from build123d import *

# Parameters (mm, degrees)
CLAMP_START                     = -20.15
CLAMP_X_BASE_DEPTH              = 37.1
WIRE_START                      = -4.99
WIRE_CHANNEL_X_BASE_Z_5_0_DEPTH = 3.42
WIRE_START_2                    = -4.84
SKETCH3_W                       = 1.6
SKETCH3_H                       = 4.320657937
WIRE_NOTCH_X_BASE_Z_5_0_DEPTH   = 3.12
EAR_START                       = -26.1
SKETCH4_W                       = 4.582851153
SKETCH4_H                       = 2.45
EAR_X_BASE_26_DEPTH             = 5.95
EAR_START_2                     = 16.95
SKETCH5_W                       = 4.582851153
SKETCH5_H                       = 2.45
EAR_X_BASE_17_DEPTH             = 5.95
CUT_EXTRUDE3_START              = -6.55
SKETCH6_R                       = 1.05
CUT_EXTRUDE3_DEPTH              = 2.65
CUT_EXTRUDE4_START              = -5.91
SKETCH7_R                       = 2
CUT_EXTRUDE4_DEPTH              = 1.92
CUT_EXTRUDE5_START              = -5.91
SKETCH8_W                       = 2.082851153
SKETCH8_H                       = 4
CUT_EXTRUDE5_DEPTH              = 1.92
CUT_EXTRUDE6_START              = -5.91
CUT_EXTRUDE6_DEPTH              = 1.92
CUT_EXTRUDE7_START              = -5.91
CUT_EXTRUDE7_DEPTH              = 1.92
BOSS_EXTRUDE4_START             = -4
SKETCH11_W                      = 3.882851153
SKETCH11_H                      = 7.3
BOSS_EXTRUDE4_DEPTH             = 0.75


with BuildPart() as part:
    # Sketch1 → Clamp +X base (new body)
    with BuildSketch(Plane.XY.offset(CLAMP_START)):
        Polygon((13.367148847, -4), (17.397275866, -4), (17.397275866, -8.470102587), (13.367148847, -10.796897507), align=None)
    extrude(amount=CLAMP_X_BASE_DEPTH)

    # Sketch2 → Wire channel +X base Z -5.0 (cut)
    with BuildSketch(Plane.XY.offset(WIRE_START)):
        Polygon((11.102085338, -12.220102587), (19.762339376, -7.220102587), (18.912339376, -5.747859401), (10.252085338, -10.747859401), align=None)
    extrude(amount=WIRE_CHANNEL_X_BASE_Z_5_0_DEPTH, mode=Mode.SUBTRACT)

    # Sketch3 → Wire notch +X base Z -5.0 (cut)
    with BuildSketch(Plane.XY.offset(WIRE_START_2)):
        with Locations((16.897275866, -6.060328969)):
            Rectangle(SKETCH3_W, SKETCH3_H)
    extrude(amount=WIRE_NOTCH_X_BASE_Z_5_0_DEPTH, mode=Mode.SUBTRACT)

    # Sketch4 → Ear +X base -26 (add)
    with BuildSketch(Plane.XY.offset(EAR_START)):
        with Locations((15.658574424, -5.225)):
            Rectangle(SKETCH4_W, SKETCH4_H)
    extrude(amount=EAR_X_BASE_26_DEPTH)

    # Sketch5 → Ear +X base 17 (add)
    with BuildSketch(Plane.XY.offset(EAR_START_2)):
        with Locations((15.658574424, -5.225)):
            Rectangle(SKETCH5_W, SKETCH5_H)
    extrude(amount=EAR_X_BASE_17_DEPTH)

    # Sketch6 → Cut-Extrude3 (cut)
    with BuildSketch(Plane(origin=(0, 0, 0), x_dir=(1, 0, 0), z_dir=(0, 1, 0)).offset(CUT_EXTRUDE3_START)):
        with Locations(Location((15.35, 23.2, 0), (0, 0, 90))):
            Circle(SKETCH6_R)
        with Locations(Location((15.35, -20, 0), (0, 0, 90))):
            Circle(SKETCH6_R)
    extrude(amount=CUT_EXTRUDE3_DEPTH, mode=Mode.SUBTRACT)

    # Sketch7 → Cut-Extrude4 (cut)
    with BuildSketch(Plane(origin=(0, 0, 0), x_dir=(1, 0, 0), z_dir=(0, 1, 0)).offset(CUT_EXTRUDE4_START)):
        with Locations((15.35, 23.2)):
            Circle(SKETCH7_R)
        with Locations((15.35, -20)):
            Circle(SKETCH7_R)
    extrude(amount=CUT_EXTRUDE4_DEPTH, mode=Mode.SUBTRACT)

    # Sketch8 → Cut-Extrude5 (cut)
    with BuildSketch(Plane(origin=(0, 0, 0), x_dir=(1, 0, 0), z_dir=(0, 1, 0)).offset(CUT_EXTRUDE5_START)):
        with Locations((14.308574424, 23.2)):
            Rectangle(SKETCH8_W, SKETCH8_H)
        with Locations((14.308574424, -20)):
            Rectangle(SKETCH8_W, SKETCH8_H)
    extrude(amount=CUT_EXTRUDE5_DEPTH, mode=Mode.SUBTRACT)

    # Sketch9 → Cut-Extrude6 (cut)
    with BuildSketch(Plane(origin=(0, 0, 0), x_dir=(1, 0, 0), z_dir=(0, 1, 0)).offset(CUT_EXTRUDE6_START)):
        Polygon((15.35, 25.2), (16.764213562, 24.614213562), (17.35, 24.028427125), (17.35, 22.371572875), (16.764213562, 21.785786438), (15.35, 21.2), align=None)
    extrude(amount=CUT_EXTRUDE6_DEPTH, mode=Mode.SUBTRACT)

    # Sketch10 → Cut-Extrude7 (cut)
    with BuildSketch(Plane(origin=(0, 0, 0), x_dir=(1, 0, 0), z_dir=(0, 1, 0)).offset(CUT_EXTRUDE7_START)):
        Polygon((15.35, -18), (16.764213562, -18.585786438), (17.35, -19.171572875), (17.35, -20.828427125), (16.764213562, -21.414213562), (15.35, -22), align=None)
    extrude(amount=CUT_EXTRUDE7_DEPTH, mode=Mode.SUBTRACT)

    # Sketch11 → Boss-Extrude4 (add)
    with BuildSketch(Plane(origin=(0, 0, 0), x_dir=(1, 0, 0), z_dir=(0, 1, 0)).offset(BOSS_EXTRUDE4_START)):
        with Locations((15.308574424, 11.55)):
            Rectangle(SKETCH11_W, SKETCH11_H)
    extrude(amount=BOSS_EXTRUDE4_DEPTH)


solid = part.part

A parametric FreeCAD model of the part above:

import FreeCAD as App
import Part
import Sketcher
Q = App.Units.Quantity

doc = App.newDocument("Part")
body = doc.addObject("PartDesign::Body", "Body")

sketch1 = body.newObject("Sketcher::SketchObject", "Sketch")
sketch1.AttachmentSupport = (doc.getObject("XY_Plane"), [""])
sketch1.MapMode = "FlatFace"
sketch1.AttachmentOffset = App.Placement(App.Vector(0, 0, -20.15), App.Rotation())
sketch1.addGeometry([
    Part.LineSegment(App.Vector(17.4, -4, 0), App.Vector(13.4, -4, 0)),
    Part.LineSegment(App.Vector(13.4, -4, 0), App.Vector(13.4, -10.8, 0)),
    Part.LineSegment(App.Vector(13.4, -10.8, 0), App.Vector(17.4, -8.5, 0)),
    Part.LineSegment(App.Vector(17.4, -8.5, 0), App.Vector(17.4, -4, 0)),
], False)
sketch1.addConstraint([
    Sketcher.Constraint("Coincident", 0, 2, 1, 1),
    Sketcher.Constraint("Coincident", 1, 2, 2, 1),
    Sketcher.Constraint("Coincident", 2, 2, 3, 1),
    Sketcher.Constraint("Coincident", 3, 2, 0, 1),
    Sketcher.Constraint("Horizontal", 0),
    Sketcher.Constraint("Vertical", 1),
    Sketcher.Constraint("Vertical", 3),
    Sketcher.Constraint("Angle", 2, Q("30 deg")),
    Sketcher.Constraint("DistanceY", 0, 2, -1, 1, Q("4 mm")),
    Sketcher.Constraint("Distance", 2, Q("4.65359 mm")),
    Sketcher.Constraint("DistanceY", 1, 2, 1, 1, Q("6.796898 mm")),
    Sketcher.Constraint("DistanceX", -1, 1, 0, 2, Q("13.367149 mm")),
])
pad1 = body.newObject("PartDesign::Pad", "Pad")
pad1.Profile = sketch1
pad1.Length = 37.1

sketch2 = body.newObject("Sketcher::SketchObject", "Sketch001")
sketch2.AttachmentSupport = (doc.getObject("XY_Plane"), [""])
sketch2.MapMode = "FlatFace"
sketch2.AttachmentOffset = App.Placement(App.Vector(0, 0, -4.99), App.Rotation())
sketch2.addGeometry([
    Part.LineSegment(App.Vector(11.1, -12.2, 0), App.Vector(19.8, -7.2, 0)),
    Part.LineSegment(App.Vector(19.8, -7.2, 0), App.Vector(18.9, -5.7, 0)),
    Part.LineSegment(App.Vector(18.9, -5.7, 0), App.Vector(10.3, -10.7, 0)),
    Part.LineSegment(App.Vector(10.3, -10.7, 0), App.Vector(11.1, -12.2, 0)),
], False)
sketch2.addConstraint([
    Sketcher.Constraint("Coincident", 0, 2, 1, 1),
    Sketcher.Constraint("Coincident", 1, 2, 2, 1),
    Sketcher.Constraint("Coincident", 2, 2, 3, 1),
    Sketcher.Constraint("Coincident", 3, 2, 0, 1),
    Sketcher.Constraint("Perpendicular", 0, 1),
    Sketcher.Constraint("Perpendicular", 1, 2),
    Sketcher.Constraint("Perpendicular", 2, 3),
    Sketcher.Constraint("Angle", 0, Q("30 deg")),
    Sketcher.Constraint("Distance", 0, Q("10 mm")),
    Sketcher.Constraint("Distance", 1, Q("1.7 mm")),
    Sketcher.Constraint("DistanceX", -1, 1, 0, 2, Q("19.762339 mm")),
    Sketcher.Constraint("DistanceY", 1, 2, -1, 1, Q("5.747859 mm")),
])
pocket1 = body.newObject("PartDesign::Pocket", "Pocket")
pocket1.Profile = sketch2
pocket1.Length = 3.42
pocket1.Reversed = True

sketch3 = body.newObject("Sketcher::SketchObject", "Sketch002")
sketch3.AttachmentSupport = (doc.getObject("XY_Plane"), [""])
sketch3.MapMode = "FlatFace"
sketch3.AttachmentOffset = App.Placement(App.Vector(0, 0, -4.84), App.Rotation())
sketch3.addGeometry([
    Part.LineSegment(App.Vector(16.1, -3.9, 0), App.Vector(16.1, -8.2, 0)),
    Part.LineSegment(App.Vector(16.1, -8.2, 0), App.Vector(17.7, -8.2, 0)),
    Part.LineSegment(App.Vector(17.7, -8.2, 0), App.Vector(17.7, -3.9, 0)),
    Part.LineSegment(App.Vector(17.7, -3.9, 0), App.Vector(16.1, -3.9, 0)),
], False)
sketch3.addConstraint([
    Sketcher.Constraint("Coincident", 0, 2, 1, 1),
    Sketcher.Constraint("Coincident", 1, 2, 2, 1),
    Sketcher.Constraint("Coincident", 2, 2, 3, 1),
    Sketcher.Constraint("Coincident", 3, 2, 0, 1),
    Sketcher.Constraint("Vertical", 0),
    Sketcher.Constraint("Horizontal", 1),
    Sketcher.Constraint("Vertical", 2),
    Sketcher.Constraint("Horizontal", 3),
    Sketcher.Constraint("DistanceX", 1, 1, 1, 2, Q("1.6 mm")),
    Sketcher.Constraint("DistanceY", 2, 2, -1, 1, Q("3.9 mm")),
    Sketcher.Constraint("DistanceY", 0, 2, 0, 1, Q("4.320658 mm")),
    Sketcher.Constraint("DistanceX", -1, 1, 0, 2, Q("16.097276 mm")),
])
pocket2 = body.newObject("PartDesign::Pocket", "Pocket001")
pocket2.Profile = sketch3
pocket2.Length = 3.12
pocket2.Reversed = True

sketch4 = body.newObject("Sketcher::SketchObject", "Sketch003")
sketch4.AttachmentSupport = (doc.getObject("XY_Plane"), [""])
sketch4.MapMode = "FlatFace"
sketch4.AttachmentOffset = App.Placement(App.Vector(0, 0, -26.1), App.Rotation())
sketch4.addGeometry([
    Part.LineSegment(App.Vector(13.4, -4, 0), App.Vector(13.4, -6.5, 0)),
    Part.LineSegment(App.Vector(13.4, -6.5, 0), App.Vector(17.9, -6.5, 0)),
    Part.LineSegment(App.Vector(17.9, -6.5, 0), App.Vector(17.9, -4, 0)),
    Part.LineSegment(App.Vector(17.9, -4, 0), App.Vector(13.4, -4, 0)),
], False)
sketch4.addConstraint([
    Sketcher.Constraint("Coincident", 0, 2, 1, 1),
    Sketcher.Constraint("Coincident", 1, 2, 2, 1),
    Sketcher.Constraint("Coincident", 2, 2, 3, 1),
    Sketcher.Constraint("Coincident", 3, 2, 0, 1),
    Sketcher.Constraint("Vertical", 0),
    Sketcher.Constraint("Horizontal", 1),
    Sketcher.Constraint("Vertical", 2),
    Sketcher.Constraint("Horizontal", 3),
    Sketcher.Constraint("DistanceY", 2, 2, -1, 1, Q("4 mm")),
    Sketcher.Constraint("DistanceY", 0, 2, 0, 1, Q("2.45 mm")),
    Sketcher.Constraint("DistanceX", -1, 1, 1, 2, Q("17.95 mm")),
    Sketcher.Constraint("DistanceX", 1, 1, 1, 2, Q("4.582851 mm")),
])
pad2 = body.newObject("PartDesign::Pad", "Pad001")
pad2.Profile = sketch4
pad2.Length = 5.95

sketch5 = body.newObject("Sketcher::SketchObject", "Sketch004")
sketch5.AttachmentSupport = (doc.getObject("XY_Plane"), [""])
sketch5.MapMode = "FlatFace"
sketch5.AttachmentOffset = App.Placement(App.Vector(0, 0, 16.95), App.Rotation())
sketch5.addGeometry([
    Part.LineSegment(App.Vector(13.4, -4, 0), App.Vector(13.4, -6.5, 0)),
    Part.LineSegment(App.Vector(13.4, -6.5, 0), App.Vector(17.9, -6.5, 0)),
    Part.LineSegment(App.Vector(17.9, -6.5, 0), App.Vector(17.9, -4, 0)),
    Part.LineSegment(App.Vector(17.9, -4, 0), App.Vector(13.4, -4, 0)),
], False)
sketch5.addConstraint([
    Sketcher.Constraint("Coincident", 0, 2, 1, 1),
    Sketcher.Constraint("Coincident", 1, 2, 2, 1),
    Sketcher.Constraint("Coincident", 2, 2, 3, 1),
    Sketcher.Constraint("Coincident", 3, 2, 0, 1),
    Sketcher.Constraint("Vertical", 0),
    Sketcher.Constraint("Horizontal", 1),
    Sketcher.Constraint("Vertical", 2),
    Sketcher.Constraint("Horizontal", 3),
    Sketcher.Constraint("DistanceY", 2, 2, -1, 1, Q("4 mm")),
    Sketcher.Constraint("DistanceY", 0, 2, 0, 1, Q("2.45 mm")),
    Sketcher.Constraint("DistanceX", -1, 1, 1, 2, Q("17.95 mm")),
    Sketcher.Constraint("DistanceX", 1, 1, 1, 2, Q("4.582851 mm")),
])
pad3 = body.newObject("PartDesign::Pad", "Pad002")
pad3.Profile = sketch5
pad3.Length = 5.95

sketch6 = body.newObject("Sketcher::SketchObject", "Sketch005")
sketch6.AttachmentSupport = (doc.getObject("XZ_Plane"), [""])
sketch6.MapMode = "FlatFace"
sketch6.AttachmentOffset = App.Placement(App.Vector(0, 0, 6.55), App.Rotation())
sketch6.addGeometry([
    Part.Circle(App.Vector(15.3, -23.2, 0), App.Vector(0, 0, 1), 1.1),
    Part.Circle(App.Vector(15.3, 20, 0), App.Vector(0, 0, 1), 1.1),
], False)
sketch6.addConstraint([
    Sketcher.Constraint("Equal", 0, 1),
    Sketcher.Constraint("Vertical", 0, 3, 1, 3),
    Sketcher.Constraint("Diameter", 0, Q("2.1 mm")),
    Sketcher.Constraint("DistanceY", -1, 1, 1, 3, Q("20 mm")),
    Sketcher.Constraint("DistanceY", 0, 3, -1, 1, Q("23.2 mm")),
    Sketcher.Constraint("DistanceX", -1, 1, 0, 3, Q("15.35 mm")),
])
pocket3 = body.newObject("PartDesign::Pocket", "Pocket002")
pocket3.Profile = sketch6
pocket3.Length = 2.65

sketch7 = body.newObject("Sketcher::SketchObject", "Sketch006")
sketch7.AttachmentSupport = (doc.getObject("XZ_Plane"), [""])
sketch7.MapMode = "FlatFace"
sketch7.AttachmentOffset = App.Placement(App.Vector(0, 0, 5.91), App.Rotation())
sketch7.addGeometry([
    Part.Circle(App.Vector(15.3, -23.2, 0), App.Vector(0, 0, 1), 2),
    Part.Circle(App.Vector(15.3, 20, 0), App.Vector(0, 0, 1), 2),
], False)
sketch7.addConstraint([
    Sketcher.Constraint("Equal", 0, 1),
    Sketcher.Constraint("Vertical", 0, 3, 1, 3),
    Sketcher.Constraint("Diameter", 0, Q("4 mm")),
    Sketcher.Constraint("DistanceY", -1, 1, 1, 3, Q("20 mm")),
    Sketcher.Constraint("DistanceY", 0, 3, -1, 1, Q("23.2 mm")),
    Sketcher.Constraint("DistanceX", -1, 1, 0, 3, Q("15.35 mm")),
])
pocket4 = body.newObject("PartDesign::Pocket", "Pocket003")
pocket4.Profile = sketch7
pocket4.Length = 1.92

sketch8 = body.newObject("Sketcher::SketchObject", "Sketch007")
sketch8.AttachmentSupport = (doc.getObject("XZ_Plane"), [""])
sketch8.MapMode = "FlatFace"
sketch8.AttachmentOffset = App.Placement(App.Vector(0, 0, 5.91), App.Rotation())
sketch8.addGeometry([
    Part.LineSegment(App.Vector(13.3, -25.2, 0), App.Vector(13.3, -21.2, 0)),
    Part.LineSegment(App.Vector(13.3, -21.2, 0), App.Vector(15.3, -21.2, 0)),
    Part.LineSegment(App.Vector(15.3, -21.2, 0), App.Vector(15.3, -25.2, 0)),
    Part.LineSegment(App.Vector(15.3, -25.2, 0), App.Vector(13.3, -25.2, 0)),
    Part.LineSegment(App.Vector(13.3, 18, 0), App.Vector(13.3, 22, 0)),
    Part.LineSegment(App.Vector(13.3, 22, 0), App.Vector(15.3, 22, 0)),
    Part.LineSegment(App.Vector(15.3, 22, 0), App.Vector(15.3, 18, 0)),
    Part.LineSegment(App.Vector(15.3, 18, 0), App.Vector(13.3, 18, 0)),
], False)
sketch8.addConstraint([
    Sketcher.Constraint("Coincident", 0, 2, 1, 1),
    Sketcher.Constraint("Coincident", 1, 2, 2, 1),
    Sketcher.Constraint("Coincident", 2, 2, 3, 1),
    Sketcher.Constraint("Coincident", 3, 2, 0, 1),
    Sketcher.Constraint("Coincident", 4, 2, 5, 1),
    Sketcher.Constraint("Coincident", 5, 2, 6, 1),
    Sketcher.Constraint("Coincident", 6, 2, 7, 1),
    Sketcher.Constraint("Coincident", 7, 2, 4, 1),
    Sketcher.Constraint("Vertical", 0),
    Sketcher.Constraint("Horizontal", 1),
    Sketcher.Constraint("Vertical", 2),
    Sketcher.Constraint("Horizontal", 3),
    Sketcher.Constraint("Vertical", 4),
    Sketcher.Constraint("Horizontal", 5),
    Sketcher.Constraint("Vertical", 6),
    Sketcher.Constraint("Horizontal", 7),
    Sketcher.Constraint("Vertical", 3, 2, 4, 2),
    Sketcher.Constraint("Vertical", 2, 2, 5, 2),
    Sketcher.Constraint("Equal", 2, 4),
    Sketcher.Constraint("DistanceY", 0, 1, 0, 2, Q("4 mm")),
    Sketcher.Constraint("DistanceY", -1, 1, 4, 2, Q("22 mm")),
    Sketcher.Constraint("DistanceY", 0, 2, -1, 1, Q("21.2 mm")),
    Sketcher.Constraint("DistanceX", -1, 1, 1, 2, Q("15.35 mm")),
    Sketcher.Constraint("DistanceX", 1, 1, 1, 2, Q("2.082851 mm")),
])
pocket5 = body.newObject("PartDesign::Pocket", "Pocket004")
pocket5.Profile = sketch8
pocket5.Length = 1.92

sketch9 = body.newObject("Sketcher::SketchObject", "Sketch008")
sketch9.AttachmentSupport = (doc.getObject("XZ_Plane"), [""])
sketch9.MapMode = "FlatFace"
sketch9.AttachmentOffset = App.Placement(App.Vector(0, 0, 5.91), App.Rotation())
sketch9.addGeometry([
    Part.LineSegment(App.Vector(16.8, -24.6, 0), App.Vector(15.3, -25.2, 0)),
    Part.LineSegment(App.Vector(15.3, -25.2, 0), App.Vector(15.3, -21.2, 0)),
    Part.LineSegment(App.Vector(15.3, -21.2, 0), App.Vector(16.8, -21.8, 0)),
    Part.LineSegment(App.Vector(16.8, -21.8, 0), App.Vector(17.4, -22.4, 0)),
    Part.LineSegment(App.Vector(17.4, -22.4, 0), App.Vector(17.4, -24, 0)),
    Part.LineSegment(App.Vector(17.4, -24, 0), App.Vector(16.8, -24.6, 0)),
], False)
sketch9.addConstraint([
    Sketcher.Constraint("Coincident", 0, 2, 1, 1),
    Sketcher.Constraint("Coincident", 1, 2, 2, 1),
    Sketcher.Constraint("Coincident", 2, 2, 3, 1),
    Sketcher.Constraint("Coincident", 3, 2, 4, 1),
    Sketcher.Constraint("Coincident", 4, 2, 5, 1),
    Sketcher.Constraint("Coincident", 5, 2, 0, 1),
    Sketcher.Constraint("Vertical", 1),
    Sketcher.Constraint("Vertical", 4),
    Sketcher.Constraint("Perpendicular", 3, 5),
    Sketcher.Constraint("Vertical", 2, 2, 5, 2),
    Sketcher.Constraint("Equal", 0, 2),
    Sketcher.Constraint("Equal", 3, 5),
    Sketcher.Constraint("DistanceY", 1, 1, 1, 2, Q("4 mm")),
    Sketcher.Constraint("Angle", 0, Q("-157.5 deg")),
    Sketcher.Constraint("DistanceX", 1, 2, 3, 2, Q("2 mm")),
    Sketcher.Constraint("DistanceY", 0, 2, -1, 1, Q("25.2 mm")),
    Sketcher.Constraint("DistanceX", -1, 1, 0, 2, Q("15.35 mm")),
    Sketcher.Constraint("DistanceY", 4, 2, 4, 1, Q("1.656854 mm")),
])
pocket6 = body.newObject("PartDesign::Pocket", "Pocket005")
pocket6.Profile = sketch9
pocket6.Length = 1.92

sketch10 = body.newObject("Sketcher::SketchObject", "Sketch009")
sketch10.AttachmentSupport = (doc.getObject("XZ_Plane"), [""])
sketch10.MapMode = "FlatFace"
sketch10.AttachmentOffset = App.Placement(App.Vector(0, 0, 5.91), App.Rotation())
sketch10.addGeometry([
    Part.LineSegment(App.Vector(16.8, 18.6, 0), App.Vector(15.3, 18, 0)),
    Part.LineSegment(App.Vector(15.3, 18, 0), App.Vector(15.3, 22, 0)),
    Part.LineSegment(App.Vector(15.3, 22, 0), App.Vector(16.8, 21.4, 0)),
    Part.LineSegment(App.Vector(16.8, 21.4, 0), App.Vector(17.4, 20.8, 0)),
    Part.LineSegment(App.Vector(17.4, 20.8, 0), App.Vector(17.4, 19.2, 0)),
    Part.LineSegment(App.Vector(17.4, 19.2, 0), App.Vector(16.8, 18.6, 0)),
], False)
sketch10.addConstraint([
    Sketcher.Constraint("Coincident", 0, 2, 1, 1),
    Sketcher.Constraint("Coincident", 1, 2, 2, 1),
    Sketcher.Constraint("Coincident", 2, 2, 3, 1),
    Sketcher.Constraint("Coincident", 3, 2, 4, 1),
    Sketcher.Constraint("Coincident", 4, 2, 5, 1),
    Sketcher.Constraint("Coincident", 5, 2, 0, 1),
    Sketcher.Constraint("Vertical", 1),
    Sketcher.Constraint("Vertical", 4),
    Sketcher.Constraint("Perpendicular", 3, 5),
    Sketcher.Constraint("Vertical", 2, 2, 5, 2),
    Sketcher.Constraint("Equal", 0, 2),
    Sketcher.Constraint("Equal", 3, 5),
    Sketcher.Constraint("DistanceY", 1, 1, 1, 2, Q("4 mm")),
    Sketcher.Constraint("DistanceY", -1, 1, 0, 2, Q("18 mm")),
    Sketcher.Constraint("Angle", 0, Q("-157.5 deg")),
    Sketcher.Constraint("DistanceX", 1, 2, 3, 2, Q("2 mm")),
    Sketcher.Constraint("DistanceX", -1, 1, 0, 2, Q("15.35 mm")),
    Sketcher.Constraint("DistanceY", 4, 2, 4, 1, Q("1.656854 mm")),
])
pocket7 = body.newObject("PartDesign::Pocket", "Pocket006")
pocket7.Profile = sketch10
pocket7.Length = 1.92

sketch11 = body.newObject("Sketcher::SketchObject", "Sketch010")
sketch11.AttachmentSupport = (doc.getObject("XZ_Plane"), [""])
sketch11.MapMode = "FlatFace"
sketch11.AttachmentOffset = App.Placement(App.Vector(0, 0, 4), App.Rotation())
sketch11.addGeometry([
    Part.LineSegment(App.Vector(13.4, -15.2, 0), App.Vector(13.4, -7.9, 0)),
    Part.LineSegment(App.Vector(13.4, -7.9, 0), App.Vector(17.2, -7.9, 0)),
    Part.LineSegment(App.Vector(17.2, -7.9, 0), App.Vector(17.2, -15.2, 0)),
    Part.LineSegment(App.Vector(17.2, -15.2, 0), App.Vector(13.4, -15.2, 0)),
], False)
sketch11.addConstraint([
    Sketcher.Constraint("Coincident", 0, 2, 1, 1),
    Sketcher.Constraint("Coincident", 1, 2, 2, 1),
    Sketcher.Constraint("Coincident", 2, 2, 3, 1),
    Sketcher.Constraint("Coincident", 3, 2, 0, 1),
    Sketcher.Constraint("Vertical", 0),
    Sketcher.Constraint("Horizontal", 1),
    Sketcher.Constraint("Vertical", 2),
    Sketcher.Constraint("Horizontal", 3),
    Sketcher.Constraint("DistanceY", 0, 1, 0, 2, Q("7.3 mm")),
    Sketcher.Constraint("DistanceY", 0, 2, -1, 1, Q("7.9 mm")),
    Sketcher.Constraint("DistanceX", -1, 1, 1, 2, Q("17.25 mm")),
    Sketcher.Constraint("DistanceX", 1, 1, 1, 2, Q("3.882851 mm")),
])
pad4 = body.newObject("PartDesign::Pad", "Pad003")
pad4.Profile = sketch11
pad4.Length = 0.75
pad4.Reversed = True

doc.recompute()
